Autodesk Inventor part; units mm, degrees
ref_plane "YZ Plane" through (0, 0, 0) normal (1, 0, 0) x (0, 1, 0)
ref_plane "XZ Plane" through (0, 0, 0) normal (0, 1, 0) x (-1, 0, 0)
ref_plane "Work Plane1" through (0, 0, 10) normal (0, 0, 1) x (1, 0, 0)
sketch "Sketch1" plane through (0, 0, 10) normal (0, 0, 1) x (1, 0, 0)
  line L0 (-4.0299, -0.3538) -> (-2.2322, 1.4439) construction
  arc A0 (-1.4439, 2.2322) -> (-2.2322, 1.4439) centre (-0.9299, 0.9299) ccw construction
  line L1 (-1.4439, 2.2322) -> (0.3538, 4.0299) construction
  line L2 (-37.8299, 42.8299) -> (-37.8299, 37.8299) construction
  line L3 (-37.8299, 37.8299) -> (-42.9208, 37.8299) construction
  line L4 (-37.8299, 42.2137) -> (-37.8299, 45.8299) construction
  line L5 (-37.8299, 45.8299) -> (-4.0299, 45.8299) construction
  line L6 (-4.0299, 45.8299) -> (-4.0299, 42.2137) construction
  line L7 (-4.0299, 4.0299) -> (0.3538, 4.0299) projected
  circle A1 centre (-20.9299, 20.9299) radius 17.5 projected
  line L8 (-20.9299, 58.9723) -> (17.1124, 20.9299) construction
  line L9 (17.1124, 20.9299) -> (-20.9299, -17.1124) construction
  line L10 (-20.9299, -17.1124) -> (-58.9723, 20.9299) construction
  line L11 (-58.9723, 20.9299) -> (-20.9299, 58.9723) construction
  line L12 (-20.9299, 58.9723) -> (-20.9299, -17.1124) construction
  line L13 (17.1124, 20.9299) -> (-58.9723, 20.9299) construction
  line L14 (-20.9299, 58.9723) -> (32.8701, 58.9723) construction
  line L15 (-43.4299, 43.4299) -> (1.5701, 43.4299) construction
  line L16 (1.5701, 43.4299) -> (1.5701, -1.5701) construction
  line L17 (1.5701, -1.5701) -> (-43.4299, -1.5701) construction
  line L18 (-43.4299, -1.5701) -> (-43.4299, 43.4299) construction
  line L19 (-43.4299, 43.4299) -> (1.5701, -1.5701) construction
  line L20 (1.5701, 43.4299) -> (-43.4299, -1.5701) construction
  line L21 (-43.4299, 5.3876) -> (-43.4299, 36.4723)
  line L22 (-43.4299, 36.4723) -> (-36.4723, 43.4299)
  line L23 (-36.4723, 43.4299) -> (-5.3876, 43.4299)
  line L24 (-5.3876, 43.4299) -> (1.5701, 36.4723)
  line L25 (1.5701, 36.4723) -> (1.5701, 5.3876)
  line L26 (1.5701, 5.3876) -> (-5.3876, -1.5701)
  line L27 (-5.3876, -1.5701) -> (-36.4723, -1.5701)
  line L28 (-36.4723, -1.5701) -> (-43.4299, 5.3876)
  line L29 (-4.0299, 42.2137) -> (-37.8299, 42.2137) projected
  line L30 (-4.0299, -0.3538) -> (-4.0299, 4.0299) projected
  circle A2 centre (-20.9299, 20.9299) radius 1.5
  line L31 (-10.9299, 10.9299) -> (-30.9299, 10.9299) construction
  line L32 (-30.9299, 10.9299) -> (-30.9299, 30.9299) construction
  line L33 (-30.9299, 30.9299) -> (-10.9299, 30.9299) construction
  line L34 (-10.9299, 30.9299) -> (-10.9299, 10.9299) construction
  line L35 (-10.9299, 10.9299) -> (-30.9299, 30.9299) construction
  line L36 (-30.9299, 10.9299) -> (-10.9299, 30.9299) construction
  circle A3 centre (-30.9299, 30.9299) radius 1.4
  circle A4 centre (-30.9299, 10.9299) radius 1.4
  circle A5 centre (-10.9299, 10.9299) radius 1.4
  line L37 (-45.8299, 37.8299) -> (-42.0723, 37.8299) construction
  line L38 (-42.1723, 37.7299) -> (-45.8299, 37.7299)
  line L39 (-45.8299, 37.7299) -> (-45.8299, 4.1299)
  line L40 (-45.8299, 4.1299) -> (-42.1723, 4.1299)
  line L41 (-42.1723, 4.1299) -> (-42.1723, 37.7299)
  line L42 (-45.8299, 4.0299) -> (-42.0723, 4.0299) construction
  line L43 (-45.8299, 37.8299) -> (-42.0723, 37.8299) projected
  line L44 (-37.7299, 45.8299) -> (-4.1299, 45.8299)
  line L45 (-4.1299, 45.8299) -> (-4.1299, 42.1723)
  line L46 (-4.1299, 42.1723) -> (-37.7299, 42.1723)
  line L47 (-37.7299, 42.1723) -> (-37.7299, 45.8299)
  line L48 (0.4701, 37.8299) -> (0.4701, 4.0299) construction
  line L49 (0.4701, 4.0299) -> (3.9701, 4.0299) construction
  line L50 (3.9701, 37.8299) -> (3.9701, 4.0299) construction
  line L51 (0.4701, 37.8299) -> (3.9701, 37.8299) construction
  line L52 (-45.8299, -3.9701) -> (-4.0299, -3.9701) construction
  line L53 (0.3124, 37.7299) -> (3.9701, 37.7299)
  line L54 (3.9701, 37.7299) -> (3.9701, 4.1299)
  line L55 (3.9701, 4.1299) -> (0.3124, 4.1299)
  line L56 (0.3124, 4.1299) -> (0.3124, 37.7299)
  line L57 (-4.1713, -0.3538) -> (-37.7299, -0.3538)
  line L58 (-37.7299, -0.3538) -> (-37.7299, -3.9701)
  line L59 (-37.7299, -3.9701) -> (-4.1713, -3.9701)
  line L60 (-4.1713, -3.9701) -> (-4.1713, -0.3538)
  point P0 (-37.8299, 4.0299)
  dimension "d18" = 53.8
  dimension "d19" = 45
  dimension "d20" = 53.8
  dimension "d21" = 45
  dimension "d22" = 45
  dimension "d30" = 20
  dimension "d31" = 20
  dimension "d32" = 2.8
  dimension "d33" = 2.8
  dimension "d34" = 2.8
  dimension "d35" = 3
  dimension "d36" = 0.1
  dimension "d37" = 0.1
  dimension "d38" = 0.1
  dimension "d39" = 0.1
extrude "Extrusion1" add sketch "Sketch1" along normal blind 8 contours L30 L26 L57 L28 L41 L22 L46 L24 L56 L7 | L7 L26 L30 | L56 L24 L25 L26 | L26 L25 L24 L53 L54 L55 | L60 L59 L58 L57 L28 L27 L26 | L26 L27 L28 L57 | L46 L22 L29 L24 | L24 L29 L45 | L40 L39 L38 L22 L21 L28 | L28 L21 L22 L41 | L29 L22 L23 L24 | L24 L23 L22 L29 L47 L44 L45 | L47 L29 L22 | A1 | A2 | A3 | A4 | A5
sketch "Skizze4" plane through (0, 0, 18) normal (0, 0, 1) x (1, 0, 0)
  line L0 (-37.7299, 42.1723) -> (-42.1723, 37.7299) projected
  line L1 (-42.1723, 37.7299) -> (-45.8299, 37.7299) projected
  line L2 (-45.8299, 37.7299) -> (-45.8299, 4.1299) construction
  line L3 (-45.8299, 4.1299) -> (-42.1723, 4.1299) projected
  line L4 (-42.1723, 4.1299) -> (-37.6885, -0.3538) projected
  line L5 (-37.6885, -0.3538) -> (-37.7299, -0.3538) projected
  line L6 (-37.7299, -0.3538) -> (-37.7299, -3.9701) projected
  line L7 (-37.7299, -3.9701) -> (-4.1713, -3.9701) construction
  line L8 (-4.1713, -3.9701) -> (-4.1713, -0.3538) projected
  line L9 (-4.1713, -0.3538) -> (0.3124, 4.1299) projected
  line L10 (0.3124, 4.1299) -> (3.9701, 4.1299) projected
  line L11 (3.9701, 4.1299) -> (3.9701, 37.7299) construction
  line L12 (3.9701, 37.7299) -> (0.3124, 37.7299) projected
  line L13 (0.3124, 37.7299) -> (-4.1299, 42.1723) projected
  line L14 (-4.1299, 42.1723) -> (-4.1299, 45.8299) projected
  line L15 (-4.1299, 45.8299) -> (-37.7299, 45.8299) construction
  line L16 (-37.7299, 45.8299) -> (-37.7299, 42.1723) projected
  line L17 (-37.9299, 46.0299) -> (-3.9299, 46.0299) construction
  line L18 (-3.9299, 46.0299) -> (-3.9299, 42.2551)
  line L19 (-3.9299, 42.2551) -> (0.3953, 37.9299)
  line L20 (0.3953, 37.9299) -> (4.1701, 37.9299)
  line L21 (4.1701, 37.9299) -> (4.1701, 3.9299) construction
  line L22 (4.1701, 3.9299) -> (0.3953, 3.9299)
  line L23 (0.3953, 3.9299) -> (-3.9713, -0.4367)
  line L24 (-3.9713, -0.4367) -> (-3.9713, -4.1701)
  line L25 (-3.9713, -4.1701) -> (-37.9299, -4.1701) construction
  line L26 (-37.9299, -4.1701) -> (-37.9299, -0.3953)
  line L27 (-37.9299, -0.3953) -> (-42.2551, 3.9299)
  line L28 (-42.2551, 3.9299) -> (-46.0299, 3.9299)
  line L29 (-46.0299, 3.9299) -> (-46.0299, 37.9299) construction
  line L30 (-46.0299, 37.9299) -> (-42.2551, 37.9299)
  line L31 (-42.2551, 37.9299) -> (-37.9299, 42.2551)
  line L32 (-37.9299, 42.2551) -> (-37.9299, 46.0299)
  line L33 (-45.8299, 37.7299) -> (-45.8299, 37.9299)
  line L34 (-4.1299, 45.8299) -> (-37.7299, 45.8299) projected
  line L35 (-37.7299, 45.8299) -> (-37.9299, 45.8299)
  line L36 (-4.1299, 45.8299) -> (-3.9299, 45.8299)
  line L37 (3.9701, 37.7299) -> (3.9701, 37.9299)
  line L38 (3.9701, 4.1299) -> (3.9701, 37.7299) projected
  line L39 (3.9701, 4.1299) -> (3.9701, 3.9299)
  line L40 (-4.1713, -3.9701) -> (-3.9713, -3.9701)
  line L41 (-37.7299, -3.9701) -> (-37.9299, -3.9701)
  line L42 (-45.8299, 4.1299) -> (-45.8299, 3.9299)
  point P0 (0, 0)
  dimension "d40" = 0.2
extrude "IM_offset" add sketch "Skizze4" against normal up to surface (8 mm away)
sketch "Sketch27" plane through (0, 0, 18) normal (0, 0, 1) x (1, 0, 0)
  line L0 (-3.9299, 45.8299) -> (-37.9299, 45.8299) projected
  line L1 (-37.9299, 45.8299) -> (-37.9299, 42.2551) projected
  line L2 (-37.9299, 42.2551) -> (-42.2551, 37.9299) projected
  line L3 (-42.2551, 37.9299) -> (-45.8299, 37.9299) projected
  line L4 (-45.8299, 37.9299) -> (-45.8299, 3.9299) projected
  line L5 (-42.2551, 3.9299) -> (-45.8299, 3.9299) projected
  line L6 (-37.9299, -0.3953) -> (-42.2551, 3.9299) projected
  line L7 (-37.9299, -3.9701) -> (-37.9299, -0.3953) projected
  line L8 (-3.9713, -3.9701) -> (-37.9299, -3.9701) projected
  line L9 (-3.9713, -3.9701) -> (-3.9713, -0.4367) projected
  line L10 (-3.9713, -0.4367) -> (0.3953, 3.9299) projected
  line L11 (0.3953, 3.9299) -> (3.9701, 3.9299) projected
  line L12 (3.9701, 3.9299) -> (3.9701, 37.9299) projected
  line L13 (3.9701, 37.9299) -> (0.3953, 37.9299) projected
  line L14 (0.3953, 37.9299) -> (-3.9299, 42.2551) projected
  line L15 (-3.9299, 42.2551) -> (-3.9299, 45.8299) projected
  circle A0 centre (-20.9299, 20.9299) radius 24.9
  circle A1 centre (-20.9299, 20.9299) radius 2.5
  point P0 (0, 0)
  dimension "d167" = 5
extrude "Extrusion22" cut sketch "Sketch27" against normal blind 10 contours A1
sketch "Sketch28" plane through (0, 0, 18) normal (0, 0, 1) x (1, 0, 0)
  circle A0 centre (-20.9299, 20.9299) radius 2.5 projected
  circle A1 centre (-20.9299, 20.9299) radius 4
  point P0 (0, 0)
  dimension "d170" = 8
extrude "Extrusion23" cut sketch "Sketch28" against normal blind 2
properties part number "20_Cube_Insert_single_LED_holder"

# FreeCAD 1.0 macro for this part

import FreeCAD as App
import Part
import Sketcher

V = App.Vector
Q = App.Units.Quantity


def add_polygon(sketch, points):
    """Adds a closed chain of lines whose ends are joined by coincident constraints."""
    first, n = sketch.GeometryCount, len(points)
    for a, b in zip(points, points[1:] + points[:1]):
        sketch.addGeometry(Part.LineSegment(App.Vector(*a, 0), App.Vector(*b, 0)), False)
    for i in range(n):
        sketch.addConstraint(Sketcher.Constraint("Coincident", first + i, 2, first + (i + 1) % n, 1))

doc = App.newDocument("Part")
body = doc.addObject("PartDesign::Body", "Body")

sketch1 = body.newObject("Sketcher::SketchObject", "Sketch")
sketch1.AttachmentSupport = (doc.getObject("XY_Plane"), [""])
sketch1.MapMode = "FlatFace"
sketch1.AttachmentOffset = App.Placement(V(0, 0, 10), App.Rotation())
add_polygon(sketch1, [(-4.171, -0.354), (0.312, 4.13), (3.97, 4.13), (3.97, 37.73), (0.312, 37.73), (-4.13, 42.172), (-4.13, 45.83), (-37.73, 45.83), (-37.73, 42.172), (-42.172, 37.73), (-45.83, 37.73), (-45.83, 4.13), (-42.172, 4.13), (-37.689, -0.354), (-37.73, -0.354), (-37.73, -3.97), (-4.171, -3.97)])
sketch1.addConstraint([
    Sketcher.Constraint("Horizontal", 1),
    Sketcher.Constraint("Vertical", 2),
    Sketcher.Constraint("Horizontal", 3),
    Sketcher.Constraint("Vertical", 5),
    Sketcher.Constraint("Horizontal", 6),
    Sketcher.Constraint("Vertical", 7),
    Sketcher.Constraint("Horizontal", 9),
    Sketcher.Constraint("Vertical", 10),
    Sketcher.Constraint("Horizontal", 11),
    Sketcher.Constraint("Horizontal", 13),
    Sketcher.Constraint("Vertical", 14),
    Sketcher.Constraint("Horizontal", 15),
    Sketcher.Constraint("Vertical", 16),
    Sketcher.Constraint("Perpendicular", 0, 4),
    Sketcher.Constraint("Perpendicular", 4, 8),
    Sketcher.Constraint("Perpendicular", 8, 12),
    Sketcher.Constraint("Horizontal", 4, 2, 7, 2),
    Sketcher.Constraint("Horizontal", 3, 2, 8, 2),
    Sketcher.Constraint("Horizontal", 1, 2, 10, 2),
    Sketcher.Constraint("Horizontal", 13, 2, 16, 2),
    Sketcher.Constraint("Vertical", 0, 2, 3, 2),
    Sketcher.Constraint("Vertical", 8, 2, 11, 2),
    Sketcher.Constraint("Vertical", 7, 2, 13, 2),
    Sketcher.Constraint("Equal", 3, 9),
    Sketcher.Constraint("Equal", 6, 2),
    Sketcher.Constraint("Equal", 11, 5),
    Sketcher.Constraint("Equal", 4, 8),
    Sketcher.Constraint("DistanceX", 6, 2, 6, 1, Q("33.6 mm")),
    Sketcher.Constraint("DistanceX", 4, 2, 2, 2, Q("8.1 mm")),
    Sketcher.Constraint("DistanceY", 14, 2, 11, 2, Q("8.1 mm")),
    Sketcher.Constraint("DistanceY", -1, 1, 0, 2, Q("4.13 mm")),
    Sketcher.Constraint("DistanceX", -1, 1, 1, 2, Q("3.97 mm")),
    Sketcher.Constraint("Distance", 0, Q("6.341 mm")),
    Sketcher.Constraint("DistanceX", 1, 1, 1, 2, Q("3.6577 mm")),
])
pad1 = body.newObject("PartDesign::Pad", "Pad")
pad1.Profile = sketch1
pad1.Length = 8

sketch2 = body.newObject("Sketcher::SketchObject", "Sketch001")
sketch2.AttachmentSupport = (doc.getObject("XY_Plane"), [""])
sketch2.MapMode = "FlatFace"
sketch2.AttachmentOffset = App.Placement(V(0, 0, 18), App.Rotation())
add_polygon(sketch2, [(3.97, 3.93), (3.97, 4.13), (0.312, 4.13), (-4.171, -0.354), (-4.171, -3.97), (-3.971, -3.97), (-3.971, -0.437), (0.395, 3.93)])
add_polygon(sketch2, [(-3.93, 45.83), (-4.13, 45.83), (-4.13, 42.172), (0.312, 37.73), (3.97, 37.73), (3.97, 37.93), (0.395, 37.93), (-3.93, 42.255)])
add_polygon(sketch2, [(-42.172, 37.73), (-37.73, 42.172), (-37.73, 45.83), (-37.93, 45.83), (-37.93, 42.255), (-42.255, 37.93), (-45.83, 37.93), (-45.83, 37.73)])
add_polygon(sketch2, [(-42.172, 4.13), (-45.83, 4.13), (-45.83, 3.93), (-42.255, 3.93), (-37.93, -0.395), (-37.93, -3.97), (-37.73, -3.97), (-37.73, -0.354), (-37.688, -0.354)])
sketch2.addConstraint([
    Sketcher.Constraint("Vertical", 0),
    Sketcher.Constraint("Horizontal", 1),
    Sketcher.Constraint("Vertical", 3),
    Sketcher.Constraint("Horizontal", 4),
    Sketcher.Constraint("Vertical", 5),
    Sketcher.Constraint("Horizontal", 7),
    Sketcher.Constraint("Horizontal", 8),
    Sketcher.Constraint("Vertical", 9),
    Sketcher.Constraint("Horizontal", 11),
    Sketcher.Constraint("Vertical", 12),
    Sketcher.Constraint("Horizontal", 13),
    Sketcher.Constraint("Vertical", 15),
    Sketcher.Constraint("Vertical", 17),
    Sketcher.Constraint("Horizontal", 18),
    Sketcher.Constraint("Vertical", 19),
    Sketcher.Constraint("Horizontal", 21),
    Sketcher.Constraint("Vertical", 22),
    Sketcher.Constraint("Horizontal", 23),
    Sketcher.Constraint("Horizontal", 24),
    Sketcher.Constraint("Vertical", 25),
    Sketcher.Constraint("Horizontal", 26),
    Sketcher.Constraint("Vertical", 28),
    Sketcher.Constraint("Horizontal", 29),
    Sketcher.Constraint("Vertical", 30),
    Sketcher.Constraint("Horizontal", 31),
    Sketcher.Constraint("Parallel", 2, 6),
    Sketcher.Constraint("Perpendicular", 6, 10),
    Sketcher.Constraint("Parallel", 10, 14),
    Sketcher.Constraint("Perpendicular", 14, 16),
    Sketcher.Constraint("Parallel", 16, 20),
    Sketcher.Constraint("Perpendicular", 20, 27),
    Sketcher.Constraint("Parallel", 27, 32),
    Sketcher.Constraint("Horizontal", 9, 2, 16, 2),
    Sketcher.Constraint("Horizontal", 15, 2, 17, 2),
    Sketcher.Constraint("Horizontal", 14, 2, 19, 2),
    Sketcher.Constraint("Horizontal", 13, 2, 20, 2),
    Sketcher.Constraint("Horizontal", 11, 2, 22, 2),
    Sketcher.Constraint("Horizontal", 1, 2, 24, 2),
    Sketcher.Constraint("Horizontal", 7, 2, 25, 2),
    Sketcher.Constraint("Horizontal", 4, 2, 28, 2),
    Sketcher.Constraint("Horizontal", 2, 2, 30, 2),
    Sketcher.Constraint("Vertical", 1, 2, 10, 2),
    Sketcher.Constraint("Vertical", 7, 2, 11, 2),
    Sketcher.Constraint("Vertical", 6, 2, 13, 2),
    Sketcher.Constraint("Vertical", 22, 2, 24, 2),
    Sketcher.Constraint("Vertical", 20, 2, 26, 2),
    Sketcher.Constraint("Vertical", 19, 2, 27, 2),
    Sketcher.Constraint("Vertical", 17, 2, 29, 2),
    Sketcher.Constraint("Vertical", 23, 2, 32, 2),
    Sketcher.Constraint("Equal", 4, 8),
    Sketcher.Constraint("Equal", 8, 18),
    Sketcher.Constraint("Equal", 13, 21),
    Sketcher.Constraint("Equal", 11, 23),
    Sketcher.Constraint("Equal", 29, 0),
    Sketcher.Constraint("Equal", 24, 9),
    Sketcher.Constraint("Equal", 0, 12),
    Sketcher.Constraint("Equal", 19, 28),
    Sketcher.Constraint("DistanceX", 4, 1, 4, 2, Q("0.2 mm")),
    Sketcher.Constraint("DistanceX", 18, 2, 15, 2, Q("34 mm")),
    Sketcher.Constraint("DistanceY", 25, 2, 21, 2, Q("34 mm")),
    Sketcher.Constraint("DistanceY", 3, 2, 1, 2, Q("8.1 mm")),
    Sketcher.Constraint("DistanceX", -1, 1, 0, 2, Q("3.97 mm")),
    Sketcher.Constraint("DistanceY", -1, 1, 0, 2, Q("4.13 mm")),
    Sketcher.Constraint("Distance", 2, Q("6.341 mm")),
    Sketcher.Constraint("DistanceX", 1, 2, 1, 1, Q("3.6577 mm")),
    Sketcher.Constraint("DistanceX", 7, 1, 7, 2, Q("3.5748 mm")),
])
pad2 = body.newObject("PartDesign::Pad", "Pad001")
pad2.Profile = sketch2
pad2.Length = 8
pad2.Reversed = True

sketch3 = body.newObject("Sketcher::SketchObject", "Sketch002")
sketch3.AttachmentSupport = (doc.getObject("XY_Plane"), [""])
sketch3.MapMode = "FlatFace"
sketch3.AttachmentOffset = App.Placement(V(0, 0, 18), App.Rotation())
sketch3.addGeometry(Part.Circle(V(-20.9, 20.9, 0), V(0, 0, 1), 2.5), False)
sketch3.addConstraint([
    Sketcher.Constraint("Diameter", 0, Q("5 mm")),
    Sketcher.Constraint("DistanceX", 0, 3, -1, 1, Q("20.93 mm")),
    Sketcher.Constraint("DistanceY", -1, 1, 0, 3, Q("20.93 mm")),
])
pocket1 = body.newObject("PartDesign::Pocket", "Pocket")
pocket1.Profile = sketch3
pocket1.Length = 10

sketch4 = body.newObject("Sketcher::SketchObject", "Sketch003")
sketch4.AttachmentSupport = (doc.getObject("XY_Plane"), [""])
sketch4.MapMode = "FlatFace"
sketch4.AttachmentOffset = App.Placement(V(0, 0, 18), App.Rotation())
sketch4.addGeometry([
    Part.Circle(V(-20.9, 20.9, 0), V(0, 0, 1), 4),
    Part.Circle(V(-20.9, 20.9, 0), V(0, 0, 1), 2.5),
], False)
sketch4.addConstraint([
    Sketcher.Constraint("Coincident", 1, 3, 0, 3),
    Sketcher.Constraint("Diameter", 0, Q("8 mm")),
    Sketcher.Constraint("Diameter", 1, Q("5 mm")),
    Sketcher.Constraint("DistanceX", 0, 3, -1, 1, Q("20.93 mm")),
    Sketcher.Constraint("DistanceY", -1, 1, 0, 3, Q("20.93 mm")),
])
pocket2 = body.newObject("PartDesign::Pocket", "Pocket001")
pocket2.Profile = sketch4
pocket2.Length = 2

doc.recompute()
